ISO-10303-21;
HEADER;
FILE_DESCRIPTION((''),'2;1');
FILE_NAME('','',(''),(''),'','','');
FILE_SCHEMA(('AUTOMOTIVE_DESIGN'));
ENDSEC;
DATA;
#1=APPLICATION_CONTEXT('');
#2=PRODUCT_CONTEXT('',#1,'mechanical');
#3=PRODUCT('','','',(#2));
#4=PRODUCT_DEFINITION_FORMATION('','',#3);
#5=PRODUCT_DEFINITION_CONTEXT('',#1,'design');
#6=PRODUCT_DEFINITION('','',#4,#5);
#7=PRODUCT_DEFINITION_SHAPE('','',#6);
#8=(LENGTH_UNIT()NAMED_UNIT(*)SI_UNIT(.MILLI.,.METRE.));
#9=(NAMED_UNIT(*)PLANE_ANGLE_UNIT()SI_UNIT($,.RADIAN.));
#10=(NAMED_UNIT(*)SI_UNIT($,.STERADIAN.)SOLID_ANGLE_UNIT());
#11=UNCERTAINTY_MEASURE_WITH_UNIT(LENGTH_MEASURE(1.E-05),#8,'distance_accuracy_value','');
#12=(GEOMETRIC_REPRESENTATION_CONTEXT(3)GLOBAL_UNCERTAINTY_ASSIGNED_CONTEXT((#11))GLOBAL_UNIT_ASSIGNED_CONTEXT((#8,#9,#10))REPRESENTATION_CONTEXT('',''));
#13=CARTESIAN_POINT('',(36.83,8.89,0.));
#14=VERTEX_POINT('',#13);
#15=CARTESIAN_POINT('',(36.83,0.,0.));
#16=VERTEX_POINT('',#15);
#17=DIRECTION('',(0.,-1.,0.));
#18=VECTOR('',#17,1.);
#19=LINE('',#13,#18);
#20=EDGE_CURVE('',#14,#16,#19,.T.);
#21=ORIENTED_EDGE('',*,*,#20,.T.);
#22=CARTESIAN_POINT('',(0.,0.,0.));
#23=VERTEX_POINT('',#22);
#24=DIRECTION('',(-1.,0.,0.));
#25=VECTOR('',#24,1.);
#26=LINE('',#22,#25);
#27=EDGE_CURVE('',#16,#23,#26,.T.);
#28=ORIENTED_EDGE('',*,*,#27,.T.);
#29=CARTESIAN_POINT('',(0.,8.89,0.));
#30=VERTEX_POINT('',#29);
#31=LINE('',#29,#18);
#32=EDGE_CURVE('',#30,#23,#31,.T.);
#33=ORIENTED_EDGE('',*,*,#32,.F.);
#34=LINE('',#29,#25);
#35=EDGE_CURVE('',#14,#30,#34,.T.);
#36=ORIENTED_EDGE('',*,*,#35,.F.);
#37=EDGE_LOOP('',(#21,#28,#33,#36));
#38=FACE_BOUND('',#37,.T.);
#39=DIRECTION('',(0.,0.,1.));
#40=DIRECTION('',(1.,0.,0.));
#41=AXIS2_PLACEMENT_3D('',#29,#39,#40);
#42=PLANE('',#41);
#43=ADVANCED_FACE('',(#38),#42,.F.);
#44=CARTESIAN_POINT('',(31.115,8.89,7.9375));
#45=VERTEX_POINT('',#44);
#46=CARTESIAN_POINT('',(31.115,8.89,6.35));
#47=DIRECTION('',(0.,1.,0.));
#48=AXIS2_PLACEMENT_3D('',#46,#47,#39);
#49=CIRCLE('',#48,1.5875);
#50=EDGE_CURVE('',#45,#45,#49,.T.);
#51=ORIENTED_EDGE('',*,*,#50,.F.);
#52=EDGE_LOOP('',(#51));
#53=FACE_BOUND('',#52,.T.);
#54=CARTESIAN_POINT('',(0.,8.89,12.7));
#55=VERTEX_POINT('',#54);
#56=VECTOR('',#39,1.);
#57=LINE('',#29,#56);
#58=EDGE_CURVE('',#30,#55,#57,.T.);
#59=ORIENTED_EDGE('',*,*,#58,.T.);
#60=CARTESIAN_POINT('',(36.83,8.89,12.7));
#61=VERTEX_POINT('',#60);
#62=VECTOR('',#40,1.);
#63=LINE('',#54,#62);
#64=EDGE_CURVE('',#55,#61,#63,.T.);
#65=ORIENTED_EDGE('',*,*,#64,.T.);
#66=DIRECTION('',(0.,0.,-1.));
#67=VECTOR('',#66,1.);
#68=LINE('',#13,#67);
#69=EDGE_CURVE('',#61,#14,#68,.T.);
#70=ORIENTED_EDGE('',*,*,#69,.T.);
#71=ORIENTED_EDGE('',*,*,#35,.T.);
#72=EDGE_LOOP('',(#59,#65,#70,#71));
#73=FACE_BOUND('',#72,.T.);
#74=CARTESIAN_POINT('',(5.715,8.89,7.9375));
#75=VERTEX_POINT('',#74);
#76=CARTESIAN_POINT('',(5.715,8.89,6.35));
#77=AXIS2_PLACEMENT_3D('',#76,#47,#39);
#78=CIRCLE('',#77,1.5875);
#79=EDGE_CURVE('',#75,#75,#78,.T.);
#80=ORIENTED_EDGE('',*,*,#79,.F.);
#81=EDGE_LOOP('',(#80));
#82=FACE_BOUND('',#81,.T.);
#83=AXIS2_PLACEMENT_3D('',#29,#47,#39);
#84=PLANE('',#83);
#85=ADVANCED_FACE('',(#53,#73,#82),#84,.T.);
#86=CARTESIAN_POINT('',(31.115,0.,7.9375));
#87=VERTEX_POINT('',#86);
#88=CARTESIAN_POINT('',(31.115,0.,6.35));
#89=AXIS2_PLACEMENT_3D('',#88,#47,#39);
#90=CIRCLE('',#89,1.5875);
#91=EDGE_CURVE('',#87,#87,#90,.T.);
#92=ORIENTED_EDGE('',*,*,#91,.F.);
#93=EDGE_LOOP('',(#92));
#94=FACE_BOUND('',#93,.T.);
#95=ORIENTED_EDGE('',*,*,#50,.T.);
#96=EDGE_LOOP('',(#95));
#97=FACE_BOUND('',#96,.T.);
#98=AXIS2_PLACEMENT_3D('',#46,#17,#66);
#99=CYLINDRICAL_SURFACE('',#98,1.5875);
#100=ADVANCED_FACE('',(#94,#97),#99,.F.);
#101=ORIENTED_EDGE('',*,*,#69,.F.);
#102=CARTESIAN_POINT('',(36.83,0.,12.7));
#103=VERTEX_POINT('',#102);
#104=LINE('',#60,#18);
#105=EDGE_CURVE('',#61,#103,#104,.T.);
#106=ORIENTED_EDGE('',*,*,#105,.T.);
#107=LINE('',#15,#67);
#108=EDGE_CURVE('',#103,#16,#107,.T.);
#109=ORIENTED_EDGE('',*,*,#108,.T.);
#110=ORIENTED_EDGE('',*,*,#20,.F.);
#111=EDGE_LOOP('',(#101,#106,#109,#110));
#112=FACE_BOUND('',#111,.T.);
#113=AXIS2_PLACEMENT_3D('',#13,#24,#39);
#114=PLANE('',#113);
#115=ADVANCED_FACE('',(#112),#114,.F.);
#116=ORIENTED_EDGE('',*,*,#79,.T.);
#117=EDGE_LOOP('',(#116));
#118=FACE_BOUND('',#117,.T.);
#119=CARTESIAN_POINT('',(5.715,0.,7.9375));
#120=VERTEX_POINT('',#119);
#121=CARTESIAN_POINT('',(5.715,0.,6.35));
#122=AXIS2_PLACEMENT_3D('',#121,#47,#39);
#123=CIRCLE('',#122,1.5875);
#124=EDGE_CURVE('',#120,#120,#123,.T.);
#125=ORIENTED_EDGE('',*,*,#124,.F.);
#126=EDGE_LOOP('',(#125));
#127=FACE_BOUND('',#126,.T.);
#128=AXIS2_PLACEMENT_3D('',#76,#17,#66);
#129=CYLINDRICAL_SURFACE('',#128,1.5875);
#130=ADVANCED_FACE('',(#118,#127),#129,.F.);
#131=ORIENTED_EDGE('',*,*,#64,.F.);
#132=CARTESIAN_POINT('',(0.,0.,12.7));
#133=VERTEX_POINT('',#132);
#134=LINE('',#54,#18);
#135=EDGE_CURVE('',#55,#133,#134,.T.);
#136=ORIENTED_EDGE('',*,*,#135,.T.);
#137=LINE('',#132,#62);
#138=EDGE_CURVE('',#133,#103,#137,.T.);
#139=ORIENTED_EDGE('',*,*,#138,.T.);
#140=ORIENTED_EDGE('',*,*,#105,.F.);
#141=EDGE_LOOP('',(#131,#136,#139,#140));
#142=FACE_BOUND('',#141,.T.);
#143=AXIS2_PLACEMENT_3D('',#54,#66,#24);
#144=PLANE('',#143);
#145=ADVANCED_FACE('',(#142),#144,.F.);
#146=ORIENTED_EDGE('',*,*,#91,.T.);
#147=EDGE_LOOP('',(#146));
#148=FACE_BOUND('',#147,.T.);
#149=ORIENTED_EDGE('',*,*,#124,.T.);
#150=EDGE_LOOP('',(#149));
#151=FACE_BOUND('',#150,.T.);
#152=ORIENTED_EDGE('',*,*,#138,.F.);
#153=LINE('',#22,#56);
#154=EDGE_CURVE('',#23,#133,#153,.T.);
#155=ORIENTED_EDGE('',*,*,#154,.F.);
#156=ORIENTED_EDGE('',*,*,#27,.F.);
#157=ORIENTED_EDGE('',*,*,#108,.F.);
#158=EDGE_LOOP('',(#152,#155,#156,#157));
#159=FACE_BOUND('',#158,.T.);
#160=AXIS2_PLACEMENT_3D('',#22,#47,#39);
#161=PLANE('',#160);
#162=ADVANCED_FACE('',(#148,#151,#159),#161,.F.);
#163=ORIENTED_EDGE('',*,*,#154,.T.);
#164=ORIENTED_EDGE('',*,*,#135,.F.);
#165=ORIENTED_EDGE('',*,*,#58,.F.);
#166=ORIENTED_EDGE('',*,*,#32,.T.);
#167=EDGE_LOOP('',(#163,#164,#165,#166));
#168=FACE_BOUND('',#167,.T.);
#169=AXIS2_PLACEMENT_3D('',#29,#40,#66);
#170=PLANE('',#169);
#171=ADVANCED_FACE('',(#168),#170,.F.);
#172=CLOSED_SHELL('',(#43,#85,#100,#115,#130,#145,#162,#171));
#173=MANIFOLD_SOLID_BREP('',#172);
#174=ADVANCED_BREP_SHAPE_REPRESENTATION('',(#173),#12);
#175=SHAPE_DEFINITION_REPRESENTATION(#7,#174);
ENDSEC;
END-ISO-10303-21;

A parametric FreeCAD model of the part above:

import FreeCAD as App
import Part
import Sketcher

V = App.Vector
Q = App.Units.Quantity


def add_polygon(sketch, points):
    """Adds a closed chain of lines whose ends are joined by coincident constraints."""
    first, n = sketch.GeometryCount, len(points)
    for a, b in zip(points, points[1:] + points[:1]):
        sketch.addGeometry(Part.LineSegment(App.Vector(*a, 0), App.Vector(*b, 0)), False)
    for i in range(n):
        sketch.addConstraint(Sketcher.Constraint("Coincident", first + i, 2, first + (i + 1) % n, 1))

doc = App.newDocument("Part")
body = doc.addObject("PartDesign::Body", "Body")

# Sketch on XZ plane
sketch1 = doc.addObject("Sketcher::SketchObject", "Sketch")
body.addObject(sketch1)
sketch1.AttachmentSupport = (doc.XZ_Plane, [""])
sketch1.MapMode = "FlatFace"
add_polygon(sketch1, [(0, 0), (0, 12.7), (36.8, 12.7), (36.8, 0)])  # lines 0-3
sketch1.addGeometry(Part.Circle(V(5.7, 6.3, 0), V(0, 0, 1), 1.6), False)  # 4
sketch1.addGeometry(Part.Circle(V(31.1, 6.3, 0), V(0, 0, 1), 1.6), False)  # 5
sketch1.addConstraint([
    Sketcher.Constraint("Vertical", 0),
    Sketcher.Constraint("Horizontal", 1),
    Sketcher.Constraint("Vertical", 2),
    Sketcher.Constraint("Horizontal", 3),
    Sketcher.Constraint("Coincident", 3, 2, -1, 1),
    Sketcher.Constraint("Equal", 4, 5),
    Sketcher.Constraint("Horizontal", 4, 3, 5, 3),
    Sketcher.Constraint("Diameter", 4, Q("0.125 in")),
    Sketcher.Constraint("DistanceY", 0, 1, 0, 2, Q("0.5 in")),
    Sketcher.Constraint("DistanceX", 4, 3, 5, 3, Q("1 in")),
    Sketcher.Constraint("DistanceX", 1, 1, 1, 2, Q("1.45 in")),
    Sketcher.Constraint("DistanceY", -1, 1, 4, 3, Q("0.25 in")),
    Sketcher.Constraint("DistanceX", -1, 1, 4, 3, Q("0.225 in")),
])
pad1 = doc.addObject("PartDesign::Pad", "Pad")
body.addObject(pad1)
pad1.Profile = sketch1
pad1.Length = Q("0.35 in")
pad1.Reversed = True

doc.recompute()
